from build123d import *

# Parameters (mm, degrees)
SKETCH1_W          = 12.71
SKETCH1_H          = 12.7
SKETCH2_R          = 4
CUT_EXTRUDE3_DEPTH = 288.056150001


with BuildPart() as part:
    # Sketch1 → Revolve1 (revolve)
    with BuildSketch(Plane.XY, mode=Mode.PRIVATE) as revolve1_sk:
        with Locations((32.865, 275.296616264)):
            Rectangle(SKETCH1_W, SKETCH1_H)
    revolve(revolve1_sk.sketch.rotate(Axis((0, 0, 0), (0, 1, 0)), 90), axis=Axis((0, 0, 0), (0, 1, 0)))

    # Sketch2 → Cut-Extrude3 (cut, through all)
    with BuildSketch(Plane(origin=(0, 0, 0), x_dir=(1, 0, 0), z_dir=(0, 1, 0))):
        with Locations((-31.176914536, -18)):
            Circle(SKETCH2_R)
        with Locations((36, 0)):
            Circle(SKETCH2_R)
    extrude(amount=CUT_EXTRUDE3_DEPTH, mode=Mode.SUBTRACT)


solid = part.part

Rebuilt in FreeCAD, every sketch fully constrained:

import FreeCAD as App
import Part
import Sketcher

V = App.Vector
Q = App.Units.Quantity

doc = App.newDocument("Part")
body = doc.addObject("PartDesign::Body", "Body")

# Sketch on XY plane
sketch1 = doc.addObject("Sketcher::SketchObject", "Sketch")
body.addObject(sketch1)
sketch1.AttachmentSupport = (doc.XY_Plane, [""])
sketch1.MapMode = "FlatFace"
sketch1.addGeometry(Part.LineSegment(V(27, 282, 0), V(27, 269, 0)), False)
sketch1.addGeometry(Part.LineSegment(V(27, 269, 0), V(39, 269, 0)), False)
sketch1.addGeometry(Part.LineSegment(V(39, 269, 0), V(39, 282, 0)), False)
sketch1.addGeometry(Part.LineSegment(V(39, 282, 0), V(27, 282, 0)), False)
sketch1.addConstraint(Sketcher.Constraint("Coincident", 0, 2, 1, 1))
sketch1.addConstraint(Sketcher.Constraint("Coincident", 1, 2, 2, 1))
sketch1.addConstraint(Sketcher.Constraint("Coincident", 2, 2, 3, 1))
sketch1.addConstraint(Sketcher.Constraint("Coincident", 3, 2, 0, 1))
sketch1.addConstraint(Sketcher.Constraint("Vertical", 0))
sketch1.addConstraint(Sketcher.Constraint("Horizontal", 1))
sketch1.addConstraint(Sketcher.Constraint("Vertical", 2))
sketch1.addConstraint(Sketcher.Constraint("Horizontal", 3))
sketch1.addConstraint(Sketcher.Constraint("DistanceY", 0, 2, 0, 1, Q("12.7 mm")))
sketch1.addConstraint(Sketcher.Constraint("DistanceX", 1, 1, 1, 2, Q("12.71 mm")))
sketch1.addConstraint(Sketcher.Constraint("DistanceX", -1, 1, 0, 2, Q("26.51 mm")))
sketch1.addConstraint(Sketcher.Constraint("DistanceY", -1, 1, 0, 2, Q("268.946616 mm")))
revolution = doc.addObject("PartDesign::Revolution", "Revolution")
body.addObject(revolution)
revolution.Profile = sketch1
revolution.ReferenceAxis = (sketch1, ["V_Axis"])
revolution.Angle = 360

# Sketch on XZ plane
sketch2 = doc.addObject("Sketcher::SketchObject", "Sketch001")
body.addObject(sketch2)
sketch2.AttachmentSupport = (doc.XZ_Plane, [""])
sketch2.MapMode = "FlatFace"
sketch2.addGeometry(Part.Circle(V(-31.2, 18, 0), V(0, 0, 1), 4), False)
sketch2.addGeometry(Part.Circle(V(36, 0, 0), V(0, 0, 1), 4), False)
sketch2.addConstraint(Sketcher.Constraint("Equal", 0, 1))
sketch2.addConstraint(Sketcher.Constraint("PointOnObject", 1, 3, -1))
sketch2.addConstraint(Sketcher.Constraint("Diameter", 0, Q("8 mm")))
sketch2.addConstraint(Sketcher.Constraint("DistanceY", -1, 1, 0, 3, Q("18 mm")))
sketch2.addConstraint(Sketcher.Constraint("DistanceX", -1, 1, 1, 3, Q("36 mm")))
sketch2.addConstraint(Sketcher.Constraint("DistanceX", 0, 3, -1, 1, Q("31.176915 mm")))
pocket1 = doc.addObject("PartDesign::Pocket", "Pocket")
body.addObject(pocket1)
pocket1.Profile = sketch2
pocket1.Type = "ThroughAll"

doc.recompute()
